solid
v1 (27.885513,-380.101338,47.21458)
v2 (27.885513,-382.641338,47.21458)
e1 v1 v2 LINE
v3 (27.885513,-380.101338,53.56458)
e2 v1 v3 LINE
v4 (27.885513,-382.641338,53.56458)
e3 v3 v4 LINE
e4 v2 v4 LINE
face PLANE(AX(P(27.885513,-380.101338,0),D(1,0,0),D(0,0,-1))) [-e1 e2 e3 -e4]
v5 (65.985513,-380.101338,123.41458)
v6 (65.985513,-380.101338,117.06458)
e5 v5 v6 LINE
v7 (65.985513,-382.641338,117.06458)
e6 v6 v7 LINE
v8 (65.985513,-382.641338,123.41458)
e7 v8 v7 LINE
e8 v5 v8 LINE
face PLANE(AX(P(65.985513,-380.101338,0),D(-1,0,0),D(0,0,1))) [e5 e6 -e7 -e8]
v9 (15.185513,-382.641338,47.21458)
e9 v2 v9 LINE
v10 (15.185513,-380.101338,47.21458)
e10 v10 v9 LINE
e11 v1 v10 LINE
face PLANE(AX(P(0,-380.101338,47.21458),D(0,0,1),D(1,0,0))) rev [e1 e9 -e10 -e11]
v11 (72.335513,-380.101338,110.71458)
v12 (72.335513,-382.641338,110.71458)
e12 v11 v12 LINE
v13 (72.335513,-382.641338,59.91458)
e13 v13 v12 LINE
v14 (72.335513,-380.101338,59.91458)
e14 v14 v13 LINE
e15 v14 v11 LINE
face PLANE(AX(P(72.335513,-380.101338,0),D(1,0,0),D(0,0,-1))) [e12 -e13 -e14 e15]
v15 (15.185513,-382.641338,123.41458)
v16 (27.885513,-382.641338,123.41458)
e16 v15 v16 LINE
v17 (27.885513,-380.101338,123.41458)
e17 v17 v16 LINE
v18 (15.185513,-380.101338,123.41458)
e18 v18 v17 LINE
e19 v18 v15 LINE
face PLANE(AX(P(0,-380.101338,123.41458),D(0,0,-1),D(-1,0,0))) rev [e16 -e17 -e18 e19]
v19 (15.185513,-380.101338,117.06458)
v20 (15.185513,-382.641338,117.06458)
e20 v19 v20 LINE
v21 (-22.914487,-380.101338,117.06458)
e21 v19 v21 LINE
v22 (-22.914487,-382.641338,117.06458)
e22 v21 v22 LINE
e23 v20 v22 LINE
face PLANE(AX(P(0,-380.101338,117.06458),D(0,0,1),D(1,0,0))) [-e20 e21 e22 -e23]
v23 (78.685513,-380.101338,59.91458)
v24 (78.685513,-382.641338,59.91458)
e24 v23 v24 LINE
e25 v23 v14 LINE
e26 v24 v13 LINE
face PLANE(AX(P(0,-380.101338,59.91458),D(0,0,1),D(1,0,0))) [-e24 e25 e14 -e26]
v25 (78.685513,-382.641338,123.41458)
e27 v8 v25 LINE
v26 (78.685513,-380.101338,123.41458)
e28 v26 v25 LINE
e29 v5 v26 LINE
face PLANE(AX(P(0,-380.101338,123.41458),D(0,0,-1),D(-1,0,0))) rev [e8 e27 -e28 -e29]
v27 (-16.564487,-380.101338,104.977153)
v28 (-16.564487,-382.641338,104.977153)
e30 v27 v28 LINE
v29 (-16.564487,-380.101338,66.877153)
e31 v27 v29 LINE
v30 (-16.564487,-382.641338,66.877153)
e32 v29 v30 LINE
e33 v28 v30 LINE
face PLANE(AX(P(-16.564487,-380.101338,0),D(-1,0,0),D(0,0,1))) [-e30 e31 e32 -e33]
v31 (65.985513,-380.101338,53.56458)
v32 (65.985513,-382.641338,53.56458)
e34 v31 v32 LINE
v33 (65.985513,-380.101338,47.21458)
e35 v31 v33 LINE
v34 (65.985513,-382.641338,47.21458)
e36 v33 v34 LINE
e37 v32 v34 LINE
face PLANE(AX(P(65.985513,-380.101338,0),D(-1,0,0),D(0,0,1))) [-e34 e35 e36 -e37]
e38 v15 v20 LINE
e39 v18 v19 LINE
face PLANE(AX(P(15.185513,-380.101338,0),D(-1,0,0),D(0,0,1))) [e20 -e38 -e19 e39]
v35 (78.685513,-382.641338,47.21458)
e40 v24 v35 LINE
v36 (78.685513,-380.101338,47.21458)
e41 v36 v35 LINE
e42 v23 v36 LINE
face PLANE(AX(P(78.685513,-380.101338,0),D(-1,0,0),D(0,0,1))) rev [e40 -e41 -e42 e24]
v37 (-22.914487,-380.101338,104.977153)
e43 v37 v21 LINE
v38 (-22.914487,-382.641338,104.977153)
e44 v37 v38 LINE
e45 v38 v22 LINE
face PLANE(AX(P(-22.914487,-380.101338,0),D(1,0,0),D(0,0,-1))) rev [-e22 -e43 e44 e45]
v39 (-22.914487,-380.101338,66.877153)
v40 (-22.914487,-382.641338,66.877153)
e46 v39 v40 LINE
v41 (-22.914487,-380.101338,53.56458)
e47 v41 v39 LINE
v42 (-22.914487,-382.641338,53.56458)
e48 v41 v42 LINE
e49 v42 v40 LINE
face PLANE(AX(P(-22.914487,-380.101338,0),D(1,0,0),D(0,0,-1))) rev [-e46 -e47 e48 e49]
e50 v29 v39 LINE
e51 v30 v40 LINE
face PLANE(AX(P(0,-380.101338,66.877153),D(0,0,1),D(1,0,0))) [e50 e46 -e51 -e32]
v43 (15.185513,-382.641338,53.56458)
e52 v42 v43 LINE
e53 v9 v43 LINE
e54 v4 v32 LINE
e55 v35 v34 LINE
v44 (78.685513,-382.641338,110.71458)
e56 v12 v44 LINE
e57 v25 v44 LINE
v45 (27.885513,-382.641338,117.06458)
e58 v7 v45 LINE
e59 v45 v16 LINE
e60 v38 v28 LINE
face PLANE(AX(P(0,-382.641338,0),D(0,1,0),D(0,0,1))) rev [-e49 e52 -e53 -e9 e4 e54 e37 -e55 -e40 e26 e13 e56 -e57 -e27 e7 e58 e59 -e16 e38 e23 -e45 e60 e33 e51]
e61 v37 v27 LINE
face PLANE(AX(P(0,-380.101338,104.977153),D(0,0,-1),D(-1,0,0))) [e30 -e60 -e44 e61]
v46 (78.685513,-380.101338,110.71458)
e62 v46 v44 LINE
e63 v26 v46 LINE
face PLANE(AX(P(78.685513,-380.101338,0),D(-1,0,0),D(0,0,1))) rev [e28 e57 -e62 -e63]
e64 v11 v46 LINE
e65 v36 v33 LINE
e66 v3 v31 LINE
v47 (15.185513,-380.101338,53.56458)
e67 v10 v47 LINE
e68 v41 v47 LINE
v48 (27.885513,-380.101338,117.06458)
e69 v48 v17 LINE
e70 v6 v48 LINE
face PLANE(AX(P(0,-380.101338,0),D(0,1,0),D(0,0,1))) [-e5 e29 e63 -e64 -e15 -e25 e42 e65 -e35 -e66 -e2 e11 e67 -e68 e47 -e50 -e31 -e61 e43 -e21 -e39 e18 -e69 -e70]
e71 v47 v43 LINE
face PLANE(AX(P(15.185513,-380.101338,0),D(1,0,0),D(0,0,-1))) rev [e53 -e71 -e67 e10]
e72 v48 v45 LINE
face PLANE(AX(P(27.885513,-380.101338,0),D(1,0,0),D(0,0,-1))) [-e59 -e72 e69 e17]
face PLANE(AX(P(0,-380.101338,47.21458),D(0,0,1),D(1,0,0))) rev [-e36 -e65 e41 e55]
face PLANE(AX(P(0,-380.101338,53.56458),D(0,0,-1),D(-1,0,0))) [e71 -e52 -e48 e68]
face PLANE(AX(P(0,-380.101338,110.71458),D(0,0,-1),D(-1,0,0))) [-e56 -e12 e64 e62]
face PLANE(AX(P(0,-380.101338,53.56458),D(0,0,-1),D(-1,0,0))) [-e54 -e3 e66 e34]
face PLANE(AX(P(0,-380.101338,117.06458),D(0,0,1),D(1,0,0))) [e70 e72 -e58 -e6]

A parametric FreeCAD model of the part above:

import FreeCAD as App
import Part
import Sketcher
Q = App.Units.Quantity


def add_polygon(sketch, points):
    """Adds a closed chain of lines whose ends are joined by coincident constraints."""
    first, n = sketch.GeometryCount, len(points)
    for a, b in zip(points, points[1:] + points[:1]):
        sketch.addGeometry(Part.LineSegment(App.Vector(*a, 0), App.Vector(*b, 0)), False)
    for i in range(n):
        sketch.addConstraint(Sketcher.Constraint("Coincident", first + i, 2, first + (i + 1) % n, 1))

doc = App.newDocument("Part")
body = doc.addObject("PartDesign::Body", "Body")

# Sketch on XZ plane
sketch1 = body.newObject("Sketcher::SketchObject", "Sketch")
sketch1.AttachmentSupport = (doc.getObject("XZ_Plane"), [""])
sketch1.MapMode = "FlatFace"
sketch1.AttachmentOffset = App.Placement(App.Vector(0, 0, 382.641338), App.Rotation())
add_polygon(sketch1, [(72.335513, 59.91458), (78.685513, 59.91458), (78.685513, 47.21458), (65.985513, 47.21458), (65.985513, 53.56458), (27.885513, 53.56458), (27.885513, 47.21458), (15.185513, 47.21458), (15.185513, 53.56458), (-22.914487, 53.56458), (-22.914487, 66.877153), (-16.564487, 66.877153), (-16.564487, 104.977153), (-22.914487, 104.977153), (-22.914487, 117.06458), (15.185513, 117.06458), (15.185513, 123.41458), (27.885513, 123.41458), (27.885513, 117.06458), (65.985513, 117.06458), (65.985513, 123.41458), (78.685513, 123.41458), (78.685513, 110.71458), (72.335513, 110.71458)])  # lines 0-23
sketch1.addConstraint(Sketcher.Constraint("Horizontal", 0))
sketch1.addConstraint(Sketcher.Constraint("Vertical", 1))
sketch1.addConstraint(Sketcher.Constraint("Horizontal", 2))
sketch1.addConstraint(Sketcher.Constraint("Vertical", 3))
sketch1.addConstraint(Sketcher.Constraint("Horizontal", 4))
sketch1.addConstraint(Sketcher.Constraint("Vertical", 5))
sketch1.addConstraint(Sketcher.Constraint("Horizontal", 6))
sketch1.addConstraint(Sketcher.Constraint("Vertical", 7))
sketch1.addConstraint(Sketcher.Constraint("Horizontal", 8))
sketch1.addConstraint(Sketcher.Constraint("Vertical", 9))
sketch1.addConstraint(Sketcher.Constraint("Horizontal", 10))
sketch1.addConstraint(Sketcher.Constraint("Vertical", 11))
sketch1.addConstraint(Sketcher.Constraint("Horizontal", 12))
sketch1.addConstraint(Sketcher.Constraint("Vertical", 13))
sketch1.addConstraint(Sketcher.Constraint("Horizontal", 14))
sketch1.addConstraint(Sketcher.Constraint("Vertical", 15))
sketch1.addConstraint(Sketcher.Constraint("Horizontal", 16))
sketch1.addConstraint(Sketcher.Constraint("Vertical", 17))
sketch1.addConstraint(Sketcher.Constraint("Horizontal", 18))
sketch1.addConstraint(Sketcher.Constraint("Vertical", 19))
sketch1.addConstraint(Sketcher.Constraint("Horizontal", 20))
sketch1.addConstraint(Sketcher.Constraint("Vertical", 21))
sketch1.addConstraint(Sketcher.Constraint("Horizontal", 22))
sketch1.addConstraint(Sketcher.Constraint("Vertical", 23))
sketch1.addConstraint(Sketcher.Constraint("Horizontal", 2, 2, 5, 2))
sketch1.addConstraint(Sketcher.Constraint("Horizontal", 4, 2, 7, 2))
sketch1.addConstraint(Sketcher.Constraint("Horizontal", 14, 2, 17, 2))
sketch1.addConstraint(Sketcher.Constraint("Horizontal", 16, 2, 19, 2))
sketch1.addConstraint(Sketcher.Constraint("Vertical", 9, 2, 12, 2))
sketch1.addConstraint(Sketcher.Constraint("Vertical", 7, 2, 14, 2))
sketch1.addConstraint(Sketcher.Constraint("Vertical", 5, 2, 16, 2))
sketch1.addConstraint(Sketcher.Constraint("Vertical", 3, 2, 18, 2))
sketch1.addConstraint(Sketcher.Constraint("Vertical", 1, 2, 20, 2))
sketch1.addConstraint(Sketcher.Constraint("Equal", 2, 6))
sketch1.addConstraint(Sketcher.Constraint("Equal", 4, 8))
sketch1.addConstraint(Sketcher.Constraint("Equal", 0, 10))
sketch1.addConstraint(Sketcher.Constraint("Equal", 20, 1))
sketch1.addConstraint(Sketcher.Constraint("Equal", 22, 3))
sketch1.addConstraint(Sketcher.Constraint("Equal", 18, 11))
sketch1.addConstraint(Sketcher.Constraint("Equal", 7, 15))
sketch1.addConstraint(Sketcher.Constraint("Equal", 1, 21))
sketch1.addConstraint(Sketcher.Constraint("DistanceY", 23, 2, 23, 1, Q("2 in")))
sketch1.addConstraint(Sketcher.Constraint("DistanceX", 2, 2, 2, 1, Q("0.5 in")))
sketch1.addConstraint(Sketcher.Constraint("DistanceX", 4, 2, 4, 1, Q("1.5 in")))
sketch1.addConstraint(Sketcher.Constraint("DistanceX", 0, 1, 0, 2, Q("0.25 in")))
sketch1.addConstraint(Sketcher.Constraint("DistanceY", 9, 1, 9, 2, Q("13.312573 mm")))
sketch1.addConstraint(Sketcher.Constraint("DistanceY", -1, 1, 0, 2, Q("59.91458 mm")))
sketch1.addConstraint(Sketcher.Constraint("DistanceX", -1, 1, 0, 2, Q("78.685513 mm")))
pad1 = body.newObject("PartDesign::Pad", "Pad")
pad1.Profile = sketch1
pad1.Length = Q("0.1 in")
pad1.Reversed = True

doc.recompute()
